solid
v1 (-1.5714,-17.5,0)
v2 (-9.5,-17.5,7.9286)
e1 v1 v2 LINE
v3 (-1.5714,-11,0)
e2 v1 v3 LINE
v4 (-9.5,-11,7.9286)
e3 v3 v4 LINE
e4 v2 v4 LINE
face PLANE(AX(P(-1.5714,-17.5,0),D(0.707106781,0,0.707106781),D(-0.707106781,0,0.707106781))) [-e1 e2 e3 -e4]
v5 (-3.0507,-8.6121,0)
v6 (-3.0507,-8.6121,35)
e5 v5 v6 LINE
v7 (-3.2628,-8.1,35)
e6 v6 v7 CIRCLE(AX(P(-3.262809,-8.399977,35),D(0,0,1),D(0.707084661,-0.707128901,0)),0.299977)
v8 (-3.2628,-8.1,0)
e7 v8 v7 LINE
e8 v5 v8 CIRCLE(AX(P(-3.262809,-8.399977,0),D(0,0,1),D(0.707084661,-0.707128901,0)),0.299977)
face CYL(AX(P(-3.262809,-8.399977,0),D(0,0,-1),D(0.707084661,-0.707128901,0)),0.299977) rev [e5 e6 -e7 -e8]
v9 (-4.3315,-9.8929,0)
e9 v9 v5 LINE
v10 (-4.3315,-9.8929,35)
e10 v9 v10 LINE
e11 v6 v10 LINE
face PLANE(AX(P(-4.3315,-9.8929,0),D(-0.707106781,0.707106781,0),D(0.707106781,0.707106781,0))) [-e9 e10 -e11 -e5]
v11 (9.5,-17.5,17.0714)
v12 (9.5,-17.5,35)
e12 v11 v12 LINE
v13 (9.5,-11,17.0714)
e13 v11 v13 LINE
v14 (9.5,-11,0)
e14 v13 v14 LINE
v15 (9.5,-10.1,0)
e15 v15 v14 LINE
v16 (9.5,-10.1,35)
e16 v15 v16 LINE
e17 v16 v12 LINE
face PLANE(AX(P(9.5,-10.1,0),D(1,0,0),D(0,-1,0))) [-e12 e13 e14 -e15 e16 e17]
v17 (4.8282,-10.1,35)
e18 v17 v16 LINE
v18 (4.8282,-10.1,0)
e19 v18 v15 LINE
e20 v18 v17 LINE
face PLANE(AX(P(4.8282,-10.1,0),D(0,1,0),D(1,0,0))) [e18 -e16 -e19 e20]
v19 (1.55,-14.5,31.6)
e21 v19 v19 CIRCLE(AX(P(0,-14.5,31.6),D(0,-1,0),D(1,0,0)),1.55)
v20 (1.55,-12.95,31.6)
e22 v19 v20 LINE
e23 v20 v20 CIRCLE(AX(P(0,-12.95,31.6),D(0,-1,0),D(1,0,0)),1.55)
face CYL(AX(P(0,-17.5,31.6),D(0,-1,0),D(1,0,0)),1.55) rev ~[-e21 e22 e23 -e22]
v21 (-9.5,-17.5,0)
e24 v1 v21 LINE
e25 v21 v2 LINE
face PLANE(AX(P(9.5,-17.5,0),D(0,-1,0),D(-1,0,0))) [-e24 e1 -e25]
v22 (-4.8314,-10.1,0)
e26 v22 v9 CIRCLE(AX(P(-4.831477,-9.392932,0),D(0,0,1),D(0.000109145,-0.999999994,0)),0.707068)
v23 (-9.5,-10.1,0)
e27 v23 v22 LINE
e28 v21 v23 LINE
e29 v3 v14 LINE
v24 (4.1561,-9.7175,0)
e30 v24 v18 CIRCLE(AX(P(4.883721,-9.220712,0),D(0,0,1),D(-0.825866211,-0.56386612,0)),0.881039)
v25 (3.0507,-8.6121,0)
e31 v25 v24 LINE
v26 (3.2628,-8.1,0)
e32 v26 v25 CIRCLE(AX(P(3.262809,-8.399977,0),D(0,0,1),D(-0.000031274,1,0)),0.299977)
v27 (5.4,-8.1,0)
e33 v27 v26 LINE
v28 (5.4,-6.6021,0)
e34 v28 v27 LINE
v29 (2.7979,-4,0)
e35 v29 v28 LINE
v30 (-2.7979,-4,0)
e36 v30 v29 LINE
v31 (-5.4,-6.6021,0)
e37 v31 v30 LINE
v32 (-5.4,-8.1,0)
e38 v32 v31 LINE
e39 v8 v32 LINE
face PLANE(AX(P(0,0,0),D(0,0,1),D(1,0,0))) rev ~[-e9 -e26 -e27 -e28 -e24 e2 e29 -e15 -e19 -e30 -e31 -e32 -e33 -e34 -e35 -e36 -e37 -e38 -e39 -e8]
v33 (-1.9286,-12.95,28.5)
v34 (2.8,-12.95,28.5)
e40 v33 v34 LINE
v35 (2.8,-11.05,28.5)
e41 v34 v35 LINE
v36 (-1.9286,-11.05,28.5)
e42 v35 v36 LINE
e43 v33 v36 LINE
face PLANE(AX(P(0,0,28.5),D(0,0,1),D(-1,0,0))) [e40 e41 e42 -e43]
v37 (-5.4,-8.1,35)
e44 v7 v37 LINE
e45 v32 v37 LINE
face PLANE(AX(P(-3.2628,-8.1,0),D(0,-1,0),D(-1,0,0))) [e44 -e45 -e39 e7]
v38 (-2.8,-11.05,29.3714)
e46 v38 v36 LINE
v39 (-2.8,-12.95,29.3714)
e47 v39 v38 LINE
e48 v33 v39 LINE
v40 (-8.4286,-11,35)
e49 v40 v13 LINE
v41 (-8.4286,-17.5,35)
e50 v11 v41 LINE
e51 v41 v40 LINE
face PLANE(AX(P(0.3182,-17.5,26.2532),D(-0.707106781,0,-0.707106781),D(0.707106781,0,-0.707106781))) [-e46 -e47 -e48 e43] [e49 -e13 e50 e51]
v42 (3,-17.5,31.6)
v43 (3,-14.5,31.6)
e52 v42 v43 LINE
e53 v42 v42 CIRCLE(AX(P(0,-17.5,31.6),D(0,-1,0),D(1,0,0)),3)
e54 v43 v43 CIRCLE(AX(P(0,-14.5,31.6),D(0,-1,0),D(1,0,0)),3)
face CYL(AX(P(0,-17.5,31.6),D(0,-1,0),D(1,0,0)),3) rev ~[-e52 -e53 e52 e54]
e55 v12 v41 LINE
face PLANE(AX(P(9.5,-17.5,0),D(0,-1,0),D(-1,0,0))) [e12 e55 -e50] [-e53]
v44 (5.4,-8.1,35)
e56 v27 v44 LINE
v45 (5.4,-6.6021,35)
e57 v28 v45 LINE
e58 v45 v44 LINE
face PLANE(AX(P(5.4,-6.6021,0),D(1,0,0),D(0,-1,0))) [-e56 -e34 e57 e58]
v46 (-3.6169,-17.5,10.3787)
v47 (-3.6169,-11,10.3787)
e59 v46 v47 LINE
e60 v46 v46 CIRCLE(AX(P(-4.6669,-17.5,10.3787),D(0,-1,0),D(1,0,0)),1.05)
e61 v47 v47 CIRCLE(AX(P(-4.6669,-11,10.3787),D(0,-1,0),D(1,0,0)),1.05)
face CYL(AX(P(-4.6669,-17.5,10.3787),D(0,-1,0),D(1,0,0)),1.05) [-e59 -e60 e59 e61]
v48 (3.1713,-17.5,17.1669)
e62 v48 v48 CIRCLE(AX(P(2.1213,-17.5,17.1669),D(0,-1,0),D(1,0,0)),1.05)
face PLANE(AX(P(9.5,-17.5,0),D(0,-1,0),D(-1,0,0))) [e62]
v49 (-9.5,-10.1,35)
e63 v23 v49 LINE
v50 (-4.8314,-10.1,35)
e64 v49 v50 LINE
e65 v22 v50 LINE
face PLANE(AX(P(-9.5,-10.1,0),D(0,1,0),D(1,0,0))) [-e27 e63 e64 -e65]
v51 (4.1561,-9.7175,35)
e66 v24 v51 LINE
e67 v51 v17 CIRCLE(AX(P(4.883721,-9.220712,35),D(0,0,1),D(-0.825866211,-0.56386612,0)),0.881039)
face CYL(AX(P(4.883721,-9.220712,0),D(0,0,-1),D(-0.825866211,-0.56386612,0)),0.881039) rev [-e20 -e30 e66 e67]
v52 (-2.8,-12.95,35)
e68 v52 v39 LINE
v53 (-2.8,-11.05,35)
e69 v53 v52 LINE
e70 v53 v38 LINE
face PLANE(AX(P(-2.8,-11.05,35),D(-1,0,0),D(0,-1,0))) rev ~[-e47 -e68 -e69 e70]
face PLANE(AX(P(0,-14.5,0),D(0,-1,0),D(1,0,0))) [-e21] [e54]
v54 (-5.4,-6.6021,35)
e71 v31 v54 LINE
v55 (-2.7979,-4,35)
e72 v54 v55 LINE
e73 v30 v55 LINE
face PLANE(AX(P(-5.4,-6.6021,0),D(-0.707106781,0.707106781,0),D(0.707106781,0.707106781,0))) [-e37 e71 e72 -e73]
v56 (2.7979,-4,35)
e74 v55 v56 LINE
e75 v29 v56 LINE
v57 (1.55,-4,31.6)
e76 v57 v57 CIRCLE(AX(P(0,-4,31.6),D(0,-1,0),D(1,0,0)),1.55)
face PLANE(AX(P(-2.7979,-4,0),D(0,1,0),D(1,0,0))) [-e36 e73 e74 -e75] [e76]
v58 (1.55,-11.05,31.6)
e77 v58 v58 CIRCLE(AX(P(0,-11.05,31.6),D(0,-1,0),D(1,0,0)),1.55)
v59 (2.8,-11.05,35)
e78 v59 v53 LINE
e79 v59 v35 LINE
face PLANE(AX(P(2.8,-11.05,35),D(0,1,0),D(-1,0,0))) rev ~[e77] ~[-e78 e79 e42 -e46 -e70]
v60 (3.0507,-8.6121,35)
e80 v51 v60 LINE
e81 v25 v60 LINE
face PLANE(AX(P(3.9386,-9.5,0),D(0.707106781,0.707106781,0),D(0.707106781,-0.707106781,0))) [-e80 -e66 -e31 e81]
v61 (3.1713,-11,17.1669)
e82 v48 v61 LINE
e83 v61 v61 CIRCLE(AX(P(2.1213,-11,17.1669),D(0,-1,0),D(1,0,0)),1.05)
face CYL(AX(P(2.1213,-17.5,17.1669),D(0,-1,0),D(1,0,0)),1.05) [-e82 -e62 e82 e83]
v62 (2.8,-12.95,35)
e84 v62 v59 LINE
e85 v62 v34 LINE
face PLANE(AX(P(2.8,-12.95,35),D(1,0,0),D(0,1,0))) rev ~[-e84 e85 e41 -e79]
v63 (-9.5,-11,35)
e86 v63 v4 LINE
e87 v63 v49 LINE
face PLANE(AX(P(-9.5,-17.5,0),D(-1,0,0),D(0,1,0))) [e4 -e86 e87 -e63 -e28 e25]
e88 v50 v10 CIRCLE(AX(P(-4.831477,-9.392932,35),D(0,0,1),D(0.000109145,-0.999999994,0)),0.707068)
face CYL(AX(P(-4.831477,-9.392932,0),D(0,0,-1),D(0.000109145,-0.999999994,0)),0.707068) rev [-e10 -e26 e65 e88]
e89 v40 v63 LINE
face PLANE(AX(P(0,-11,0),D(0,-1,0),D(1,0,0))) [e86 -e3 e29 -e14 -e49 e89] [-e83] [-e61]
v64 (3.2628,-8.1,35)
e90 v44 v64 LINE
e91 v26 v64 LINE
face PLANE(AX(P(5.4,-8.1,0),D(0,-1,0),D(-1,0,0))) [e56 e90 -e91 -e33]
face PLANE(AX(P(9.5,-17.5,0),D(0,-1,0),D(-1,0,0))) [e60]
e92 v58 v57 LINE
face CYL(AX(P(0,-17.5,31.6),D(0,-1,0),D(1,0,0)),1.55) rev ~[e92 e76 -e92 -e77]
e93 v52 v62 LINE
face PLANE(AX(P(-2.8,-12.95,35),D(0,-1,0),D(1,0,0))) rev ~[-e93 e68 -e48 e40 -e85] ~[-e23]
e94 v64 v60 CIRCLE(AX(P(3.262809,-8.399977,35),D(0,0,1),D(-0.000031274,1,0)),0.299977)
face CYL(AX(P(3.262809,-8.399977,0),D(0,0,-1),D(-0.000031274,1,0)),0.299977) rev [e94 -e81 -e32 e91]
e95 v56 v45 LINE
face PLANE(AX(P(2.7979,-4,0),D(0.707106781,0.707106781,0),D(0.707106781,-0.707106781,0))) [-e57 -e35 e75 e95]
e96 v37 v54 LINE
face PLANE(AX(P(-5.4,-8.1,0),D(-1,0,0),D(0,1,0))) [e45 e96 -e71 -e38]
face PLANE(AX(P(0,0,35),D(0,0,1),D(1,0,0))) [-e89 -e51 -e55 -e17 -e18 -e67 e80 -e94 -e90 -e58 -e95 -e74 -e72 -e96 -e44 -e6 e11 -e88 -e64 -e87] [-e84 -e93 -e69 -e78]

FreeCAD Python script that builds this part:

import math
import FreeCAD as App
import Part
import Sketcher
from FreeCAD import Vector
Q = App.Units.Quantity

doc = App.newDocument("Part")
body = doc.addObject("PartDesign::Body", "Body")

# Sketch on XY plane
sketch1 = body.newObject("Sketcher::SketchObject", "Sketch")
sketch1.AttachmentSupport = (doc.getObject("XY_Plane"), [""])
sketch1.MapMode = "FlatFace"
sketch1.addGeometry([
    Part.LineSegment(Vector(9.5, -17.5, 0), Vector(9.5, -10.1, 0)),  # 0
    Part.LineSegment(Vector(9.5, -10.1, 0), Vector(4.83, -10.1, 0)),  # 1
    Part.ArcOfCircle(Part.Circle(Vector(4.88, -9.22, 0), Vector(0, 0, 1), 0.88), math.radians(-146), math.radians(-94)),  # 2
    Part.LineSegment(Vector(4.16, -9.72, 0), Vector(3.05, -8.61, 0)),  # 3
    Part.ArcOfCircle(Part.Circle(Vector(3.26, -8.4, 0), Vector(0, 0, 1), 0.3), math.radians(90), math.radians(225)),  # 4
    Part.LineSegment(Vector(3.26, -8.1, 0), Vector(5.4, -8.1, 0)),  # 5
    Part.LineSegment(Vector(5.4, -8.1, 0), Vector(5.4, -6.6, 0)),  # 6
    Part.LineSegment(Vector(5.4, -6.6, 0), Vector(2.8, -4, 0)),  # 7
    Part.LineSegment(Vector(2.8, -4, 0), Vector(-2.8, -4, 0)),  # 8
    Part.LineSegment(Vector(-2.8, -4, 0), Vector(-5.4, -6.6, 0)),  # 9
    Part.LineSegment(Vector(-5.4, -6.6, 0), Vector(-5.4, -8.1, 0)),  # 10
    Part.LineSegment(Vector(-5.4, -8.1, 0), Vector(-3.26, -8.1, 0)),  # 11
    Part.ArcOfCircle(Part.Circle(Vector(-3.26, -8.4, 0), Vector(0, 0, 1), 0.3), math.radians(-45), math.radians(90)),  # 12
    Part.LineSegment(Vector(-3.05, -8.61, 0), Vector(-4.33, -9.89, 0)),  # 13
    Part.ArcOfCircle(Part.Circle(Vector(-4.83, -9.39, 0), Vector(0, 0, 1), 0.71), math.radians(-90), math.radians(-45)),  # 14
    Part.LineSegment(Vector(-4.83, -10.1, 0), Vector(-9.5, -10.1, 0)),  # 15
    Part.LineSegment(Vector(-9.5, -10.1, 0), Vector(-9.5, -17.5, 0)),  # 16
    Part.LineSegment(Vector(-9.5, -17.5, 0), Vector(9.5, -17.5, 0)),  # 17
], False)
sketch1.addConstraint([
    Sketcher.Constraint("Coincident", 0, 2, 1, 1),
    Sketcher.Constraint("Coincident", 1, 2, 2, 2),
    Sketcher.Constraint("Coincident", 2, 1, 3, 1),
    Sketcher.Constraint("Tangent", 3, 2, 4, 2),
    Sketcher.Constraint("Tangent", 4, 1, 5, 1),
    Sketcher.Constraint("Coincident", 5, 2, 6, 1),
    Sketcher.Constraint("Coincident", 6, 2, 7, 1),
    Sketcher.Constraint("Coincident", 7, 2, 8, 1),
    Sketcher.Constraint("Coincident", 8, 2, 9, 1),
    Sketcher.Constraint("Coincident", 9, 2, 10, 1),
    Sketcher.Constraint("Coincident", 10, 2, 11, 1),
    Sketcher.Constraint("Tangent", 11, 2, 12, 2),
    Sketcher.Constraint("Tangent", 12, 1, 13, 1),
    Sketcher.Constraint("Tangent", 13, 2, 14, 2),
    Sketcher.Constraint("Tangent", 14, 1, 15, 1),
    Sketcher.Constraint("Coincident", 15, 2, 16, 1),
    Sketcher.Constraint("Coincident", 16, 2, 17, 1),
    Sketcher.Constraint("Coincident", 17, 2, 0, 1),
    Sketcher.Constraint("Vertical", 0),
    Sketcher.Constraint("Horizontal", 1),
    Sketcher.Constraint("Horizontal", 5),
    Sketcher.Constraint("Vertical", 6),
    Sketcher.Constraint("Horizontal", 8),
    Sketcher.Constraint("Vertical", 10),
    Sketcher.Constraint("Horizontal", 11),
    Sketcher.Constraint("Horizontal", 15),
    Sketcher.Constraint("Vertical", 16),
    Sketcher.Constraint("Horizontal", 17),
    Sketcher.Constraint("Equal", 4, 12),
    Sketcher.Constraint("Symmetric", 4, 3, 12, 3, -2),
    Sketcher.Constraint("Symmetric", 6, 2, 9, 2, -2),
    Sketcher.Constraint("Symmetric", 0, 2, 15, 2, -2),
    Sketcher.Constraint("Parallel", 3, 7),
    Sketcher.Constraint("Perpendicular", 7, 9),
    Sketcher.Constraint("Parallel", 9, 13),
    Sketcher.Constraint("Horizontal", 3, 2, 12, 1),
    Sketcher.Constraint("Radius", 4, 0.3),
    Sketcher.Constraint("DistanceX", 17, 1, 17, 2, 19.0),
    Sketcher.Constraint("DistanceY", 0, 1, 0, 2, 7.4),
    Sketcher.Constraint("DistanceY", 7, 2, -1, 1, 4.0),
    Sketcher.Constraint("Radius", 2, 0.881),
    Sketcher.Constraint("Radius", 14, 0.707),
    Sketcher.Constraint("DistanceY", 1, 2, 4, 1, 2.0),
    Sketcher.Constraint("DistanceY", 4, 3, -1, 1, 8.4),
    Sketcher.Constraint("DistanceX", -1, 1, 5, 2, 5.4),
    Sketcher.Constraint("Distance", 7, 3.68),
    Sketcher.Constraint("DistanceX", 1, 2, 1, 1, 4.6718),
    Sketcher.Constraint("DistanceX", 5, 1, 5, 2, 2.1372),
    Sketcher.Constraint("DistanceX", -1, 1, 2, 1, 4.156),
])
pad1 = body.newObject("PartDesign::Pad", "Pad")
pad1.Profile = sketch1
pad1.Length = 35

# Sketch on XZ plane
sketch2 = body.newObject("Sketcher::SketchObject", "Sketch001")
sketch2.AttachmentSupport = (doc.getObject("XZ_Plane"), [""])
sketch2.MapMode = "FlatFace"
sketch2.AttachmentOffset = App.Placement(Vector(0, 0, 17.5), App.Rotation())
sketch2.addGeometry([
    Part.LineSegment(Vector(-9.5, 7.9, 0), Vector(-1.6, 0, 0)),  # 0
    Part.LineSegment(Vector(-1.6, 0, 0), Vector(9.5, 0, 0)),  # 1
    Part.LineSegment(Vector(9.5, 0, 0), Vector(9.5, 17.1, 0)),  # 2
    Part.LineSegment(Vector(9.5, 17.1, 0), Vector(-8.4, 35, 0)),  # 3
    Part.LineSegment(Vector(-8.4, 35, 0), Vector(-9.5, 35, 0)),  # 4
    Part.LineSegment(Vector(-9.5, 35, 0), Vector(-9.5, 7.9, 0)),  # 5
    Part.Circle(Vector(-4.7, 10.4, 0), Vector(0, 0, 1), 1.1),  # 6
    Part.Circle(Vector(2.1, 17.2, 0), Vector(0, 0, 1), 1.1),  # 7
], False)
sketch2.addConstraint([
    Sketcher.Constraint("Coincident", 0, 2, 1, 1),
    Sketcher.Constraint("Coincident", 1, 2, 2, 1),
    Sketcher.Constraint("Coincident", 2, 2, 3, 1),
    Sketcher.Constraint("Coincident", 3, 2, 4, 1),
    Sketcher.Constraint("Coincident", 4, 2, 5, 1),
    Sketcher.Constraint("Coincident", 5, 2, 0, 1),
    Sketcher.Constraint("Horizontal", 1),
    Sketcher.Constraint("Vertical", 2),
    Sketcher.Constraint("Horizontal", 4),
    Sketcher.Constraint("Vertical", 5),
    Sketcher.Constraint("Equal", 6, 7),
    Sketcher.Constraint("PointOnObject", 0, 2, -1),
    Sketcher.Constraint("Parallel", 0, 3),
    Sketcher.Constraint("Diameter", 6, 2.1),
    Sketcher.Constraint("Angle", 0, Q("-45 deg")),
    Sketcher.Constraint("DistanceY", -1, 1, 3, 2, 35.0),
    Sketcher.Constraint("DistanceX", 4, 2, 2, 2, 19.0),
    Sketcher.Constraint("DistanceX", -1, 1, 1, 2, 9.5),
    Sketcher.Constraint("DistanceX", 3, 2, 7, 3, 10.55),
    Sketcher.Constraint("DistanceY", 5, 2, 6, 3, 2.45),
    Sketcher.Constraint("DistanceX", 1, 1, 1, 2, 11.0714),
    Sketcher.Constraint("DistanceX", 4, 2, 4, 1, 1.0714),
    Sketcher.Constraint("DistanceX", 6, 3, -1, 1, 4.667),
    Sketcher.Constraint("DistanceY", -1, 1, 7, 3, 17.167),
])
pocket1 = body.newObject("PartDesign::Pocket", "Pocket")
pocket1.Profile = sketch2
pocket1.Length = 6.5

# Sketch on XZ plane
sketch3 = body.newObject("Sketcher::SketchObject", "Sketch002")
sketch3.AttachmentSupport = (doc.getObject("XZ_Plane"), [""])
sketch3.MapMode = "FlatFace"
sketch3.AttachmentOffset = App.Placement(Vector(0, 0, 17.5), App.Rotation())
sketch3.addGeometry(Part.Circle(Vector(0, 31.6, 0), Vector(0, 0, 1), 1.6), False)
sketch3.addConstraint([
    Sketcher.Constraint("PointOnObject", 0, 3, -2),
    Sketcher.Constraint("Diameter", 0, 3.1),
    Sketcher.Constraint("DistanceY", -1, 1, 0, 3, 31.6),
])
pocket2 = body.newObject("PartDesign::Pocket", "Pocket001")
pocket2.Profile = sketch3
pocket2.Length = 20

# Sketch on XZ plane
sketch4 = body.newObject("Sketcher::SketchObject", "Sketch003")
sketch4.AttachmentSupport = (doc.getObject("XZ_Plane"), [""])
sketch4.MapMode = "FlatFace"
sketch4.AttachmentOffset = App.Placement(Vector(0, 0, 17.5), App.Rotation())
sketch4.addGeometry([
    Part.Circle(Vector(0, 31.6, 0), Vector(0, 0, 1), 3),
    Part.Circle(Vector(0, 31.6, 0), Vector(0, 0, 1), 1.6),
], False)
sketch4.addConstraint([
    Sketcher.Constraint("Coincident", 1, 3, 0, 3),
    Sketcher.Constraint("PointOnObject", 0, 3, -2),
    Sketcher.Constraint("Diameter", 0, 6.0),
    Sketcher.Constraint("Diameter", 1, 3.1),
    Sketcher.Constraint("DistanceY", -1, 1, 0, 3, 31.6),
])
pocket3 = body.newObject("PartDesign::Pocket", "Pocket002")
pocket3.Profile = sketch4
pocket3.Length = 3

# Sketch on XY plane
sketch5 = body.newObject("Sketcher::SketchObject", "Sketch004")
sketch5.AttachmentSupport = (doc.getObject("XY_Plane"), [""])
sketch5.MapMode = "FlatFace"
sketch5.AttachmentOffset = App.Placement(Vector(0, 0, 35), App.Rotation())
sketch5.addGeometry([
    Part.LineSegment(Vector(-2.8, -11.1, 0), Vector(-2.8, -12.9, 0)),
    Part.LineSegment(Vector(-2.8, -12.9, 0), Vector(2.8, -12.9, 0)),
    Part.LineSegment(Vector(2.8, -12.9, 0), Vector(2.8, -11.1, 0)),
    Part.LineSegment(Vector(2.8, -11.1, 0), Vector(-2.8, -11.1, 0)),
], False)
sketch5.addConstraint([
    Sketcher.Constraint("Coincident", 0, 2, 1, 1),
    Sketcher.Constraint("Coincident", 1, 2, 2, 1),
    Sketcher.Constraint("Coincident", 2, 2, 3, 1),
    Sketcher.Constraint("Coincident", 3, 2, 0, 1),
    Sketcher.Constraint("Vertical", 0),
    Sketcher.Constraint("Horizontal", 1),
    Sketcher.Constraint("Vertical", 2),
    Sketcher.Constraint("Horizontal", 3),
    Sketcher.Constraint("DistanceX", 1, 1, 1, 2, 5.6),
    Sketcher.Constraint("DistanceY", 0, 2, 0, 1, 1.9),
    Sketcher.Constraint("DistanceX", 0, 2, -1, 1, 2.8),
    Sketcher.Constraint("DistanceY", 0, 2, -1, 1, 12.95),
])
pocket4 = body.newObject("PartDesign::Pocket", "Pocket003")
pocket4.Profile = sketch5
pocket4.Length = 6.5

doc.recompute()
